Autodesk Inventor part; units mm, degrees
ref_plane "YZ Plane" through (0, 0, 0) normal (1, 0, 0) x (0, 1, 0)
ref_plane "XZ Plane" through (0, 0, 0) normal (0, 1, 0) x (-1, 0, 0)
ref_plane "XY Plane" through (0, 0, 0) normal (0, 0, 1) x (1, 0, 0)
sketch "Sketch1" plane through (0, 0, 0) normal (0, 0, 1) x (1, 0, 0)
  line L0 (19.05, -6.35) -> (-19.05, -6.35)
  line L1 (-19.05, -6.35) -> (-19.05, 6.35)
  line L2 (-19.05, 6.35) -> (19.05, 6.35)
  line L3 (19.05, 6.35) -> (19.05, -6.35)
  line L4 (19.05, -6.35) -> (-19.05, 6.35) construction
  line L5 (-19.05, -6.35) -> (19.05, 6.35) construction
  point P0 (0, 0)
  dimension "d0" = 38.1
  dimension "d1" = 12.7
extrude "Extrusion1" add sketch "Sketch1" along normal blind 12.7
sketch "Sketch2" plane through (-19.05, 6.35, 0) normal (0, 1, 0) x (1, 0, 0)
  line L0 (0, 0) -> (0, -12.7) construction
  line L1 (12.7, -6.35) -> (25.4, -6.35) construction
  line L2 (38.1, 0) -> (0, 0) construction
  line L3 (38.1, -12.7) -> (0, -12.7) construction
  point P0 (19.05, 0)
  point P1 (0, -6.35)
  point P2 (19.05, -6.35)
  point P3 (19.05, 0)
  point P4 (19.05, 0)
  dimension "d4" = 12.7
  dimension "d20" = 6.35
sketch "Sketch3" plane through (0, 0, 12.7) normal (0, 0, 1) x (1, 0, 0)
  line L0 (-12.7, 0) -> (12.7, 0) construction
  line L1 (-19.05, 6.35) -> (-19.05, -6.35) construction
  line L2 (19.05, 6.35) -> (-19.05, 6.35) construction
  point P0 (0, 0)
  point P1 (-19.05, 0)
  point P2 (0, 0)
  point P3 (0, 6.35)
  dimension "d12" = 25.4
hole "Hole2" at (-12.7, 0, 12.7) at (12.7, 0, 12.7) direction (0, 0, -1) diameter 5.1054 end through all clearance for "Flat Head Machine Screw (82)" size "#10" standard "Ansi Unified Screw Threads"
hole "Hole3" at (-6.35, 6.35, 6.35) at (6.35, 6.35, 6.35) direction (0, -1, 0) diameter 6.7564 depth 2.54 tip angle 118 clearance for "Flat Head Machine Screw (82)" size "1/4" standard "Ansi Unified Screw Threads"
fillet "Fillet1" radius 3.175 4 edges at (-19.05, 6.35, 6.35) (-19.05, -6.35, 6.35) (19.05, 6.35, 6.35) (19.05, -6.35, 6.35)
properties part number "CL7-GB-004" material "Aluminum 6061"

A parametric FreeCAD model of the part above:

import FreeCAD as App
import Part
import Sketcher
Q = App.Units.Quantity


def edges_at(feature, points):
    """Names of the edges that pass closest to the given points."""
    edges = feature.Shape.Edges
    near = lambda p: min(range(len(edges)), key=lambda i: edges[i].distToShape(Part.Vertex(*p))[0])
    return sorted({f"Edge{near(p) + 1}" for p in points})

doc = App.newDocument("Part")
params = doc.addObject("Spreadsheet::Sheet", "Params")
for row, (alias, value) in enumerate([
    ("sketch1_width", "1.5 in"),
    ("sketch1_height", "0.5 in"),
    ("pad1_length", "0.5 in"),
    ("sketch2_diameter", "0.201 in"),
    ("hole_diameter", "0.201 in"),
    ("sketch3_diameter", "0.266 in"),
    ("hole2_diameter", "0.266 in"),
    ("hole2_depth", "0.1 in"),
    ("fillet_radius", "0.125 in"),
], start=1):
    params.set(f"A{row}", alias)
    params.set(f"B{row}", "=" + value)
    params.setAlias(f"B{row}", alias)

body = doc.addObject("PartDesign::Body", "Body")

# Sketch on XY plane
sketch1 = doc.addObject("Sketcher::SketchObject", "Sketch")
body.addObject(sketch1)
sketch1.AttachmentSupport = (doc.XY_Plane, [""])
sketch1.MapMode = "FlatFace"
sketch1.addGeometry([
    Part.LineSegment(App.Vector(-19, -6, 0), App.Vector(19, -6, 0)),
    Part.LineSegment(App.Vector(19, -6, 0), App.Vector(19, 6, 0)),
    Part.LineSegment(App.Vector(19, 6, 0), App.Vector(-19, 6, 0)),
    Part.LineSegment(App.Vector(-19, 6, 0), App.Vector(-19, -6, 0)),
], False)
sketch1.addConstraint([
    Sketcher.Constraint("Coincident", 0, 2, 1, 1),
    Sketcher.Constraint("Coincident", 1, 2, 2, 1),
    Sketcher.Constraint("Coincident", 2, 2, 3, 1),
    Sketcher.Constraint("Coincident", 3, 2, 0, 1),
    Sketcher.Constraint("Horizontal", 0),
    Sketcher.Constraint("Vertical", 1),
    Sketcher.Constraint("Horizontal", 2),
    Sketcher.Constraint("Vertical", 3),
    Sketcher.Constraint("Symmetric", 0, 2, 2, 2, -1, 1),
    Sketcher.Constraint("DistanceX", 0, 1, 0, 2, Q("1.5 in")),
    Sketcher.Constraint("DistanceY", 1, 1, 1, 2, Q("0.5 in")),
])
sketch1.setExpression("Constraints[9]", "Params.sketch1_width")
sketch1.setExpression("Constraints[10]", "Params.sketch1_height")
pad1 = doc.addObject("PartDesign::Pad", "Pad")
body.addObject(pad1)
pad1.Profile = sketch1
pad1.setExpression("Length", "Params.pad1_length")

# Sketch on XY plane
sketch2 = doc.addObject("Sketcher::SketchObject", "Sketch001")
body.addObject(sketch2)
sketch2.AttachmentSupport = (doc.XY_Plane, [""])
sketch2.MapMode = "FlatFace"
sketch2.AttachmentOffset = App.Placement(App.Vector(0, 0, 0.5 * 25.4), App.Rotation())
sketch2.addGeometry([
    Part.Circle(App.Vector(-12.7, 0, 0), App.Vector(0, 0, 1), 2.6),
    Part.Circle(App.Vector(12.7, 0, 0), App.Vector(0, 0, 1), 2.6),
], False)
sketch2.addConstraint([
    Sketcher.Constraint("Equal", 0, 1),
    Sketcher.Constraint("Symmetric", 0, 3, 1, 3, -1, 1),
    Sketcher.Constraint("PointOnObject", 0, 3, -1),
    Sketcher.Constraint("Diameter", 0, Q("0.201 in")),
    Sketcher.Constraint("DistanceX", 0, 3, 1, 3, Q("1 in")),
])
sketch2.setExpression("Constraints[3]", "Params.sketch2_diameter")
doc.recompute()
hole = doc.addObject("PartDesign::Hole", "Hole")
body.addObject(hole)
hole.Profile = sketch2
hole.ThreadType = "None"
hole.setExpression("Diameter", "Params.hole_diameter")
hole.DepthType = "ThroughAll"

# Sketch on XZ plane
sketch3 = doc.addObject("Sketcher::SketchObject", "Sketch002")
body.addObject(sketch3)
sketch3.AttachmentSupport = (doc.XZ_Plane, [""])
sketch3.MapMode = "FlatFace"
sketch3.AttachmentOffset = App.Placement(App.Vector(0, 0, -0.25 * 25.4), App.Rotation())
sketch3.addGeometry([
    Part.Circle(App.Vector(-6.3, 6.3, 0), App.Vector(0, 0, 1), 3.4),
    Part.Circle(App.Vector(6.3, 6.3, 0), App.Vector(0, 0, 1), 3.4),
], False)
sketch3.addConstraint([
    Sketcher.Constraint("Equal", 0, 1),
    Sketcher.Constraint("Symmetric", 0, 3, 1, 3, -2),
    Sketcher.Constraint("Diameter", 0, Q("0.266 in")),
    Sketcher.Constraint("DistanceX", 0, 3, 1, 3, Q("0.5 in")),
    Sketcher.Constraint("DistanceY", -1, 1, 0, 3, Q("0.25 in")),
])
sketch3.setExpression("Constraints[2]", "Params.sketch3_diameter")
doc.recompute()
hole2 = doc.addObject("PartDesign::Hole", "Hole001")
body.addObject(hole2)
hole2.Profile = sketch3
hole2.ThreadType = "None"
hole2.setExpression("Diameter", "Params.hole2_diameter")
hole2.DepthType = "Dimension"
hole2.setExpression("Depth", "Params.hole2_depth")
hole2.DrillPoint = "Angled"
hole2.DrillPointAngle = 118
hole2.Reversed = True
doc.recompute()

fillet = doc.addObject("PartDesign::Fillet", "Fillet")
body.addObject(fillet)
fillet.Base = (hole2, edges_at(hole2, [
    (-19.05, 6.35, 6.35),
    (-19.05, -6.35, 6.35),
    (19.05, 6.35, 6.35),
    (19.05, -6.35, 6.35),
]))
fillet.setExpression("Radius", "Params.fillet_radius")

doc.recompute()
